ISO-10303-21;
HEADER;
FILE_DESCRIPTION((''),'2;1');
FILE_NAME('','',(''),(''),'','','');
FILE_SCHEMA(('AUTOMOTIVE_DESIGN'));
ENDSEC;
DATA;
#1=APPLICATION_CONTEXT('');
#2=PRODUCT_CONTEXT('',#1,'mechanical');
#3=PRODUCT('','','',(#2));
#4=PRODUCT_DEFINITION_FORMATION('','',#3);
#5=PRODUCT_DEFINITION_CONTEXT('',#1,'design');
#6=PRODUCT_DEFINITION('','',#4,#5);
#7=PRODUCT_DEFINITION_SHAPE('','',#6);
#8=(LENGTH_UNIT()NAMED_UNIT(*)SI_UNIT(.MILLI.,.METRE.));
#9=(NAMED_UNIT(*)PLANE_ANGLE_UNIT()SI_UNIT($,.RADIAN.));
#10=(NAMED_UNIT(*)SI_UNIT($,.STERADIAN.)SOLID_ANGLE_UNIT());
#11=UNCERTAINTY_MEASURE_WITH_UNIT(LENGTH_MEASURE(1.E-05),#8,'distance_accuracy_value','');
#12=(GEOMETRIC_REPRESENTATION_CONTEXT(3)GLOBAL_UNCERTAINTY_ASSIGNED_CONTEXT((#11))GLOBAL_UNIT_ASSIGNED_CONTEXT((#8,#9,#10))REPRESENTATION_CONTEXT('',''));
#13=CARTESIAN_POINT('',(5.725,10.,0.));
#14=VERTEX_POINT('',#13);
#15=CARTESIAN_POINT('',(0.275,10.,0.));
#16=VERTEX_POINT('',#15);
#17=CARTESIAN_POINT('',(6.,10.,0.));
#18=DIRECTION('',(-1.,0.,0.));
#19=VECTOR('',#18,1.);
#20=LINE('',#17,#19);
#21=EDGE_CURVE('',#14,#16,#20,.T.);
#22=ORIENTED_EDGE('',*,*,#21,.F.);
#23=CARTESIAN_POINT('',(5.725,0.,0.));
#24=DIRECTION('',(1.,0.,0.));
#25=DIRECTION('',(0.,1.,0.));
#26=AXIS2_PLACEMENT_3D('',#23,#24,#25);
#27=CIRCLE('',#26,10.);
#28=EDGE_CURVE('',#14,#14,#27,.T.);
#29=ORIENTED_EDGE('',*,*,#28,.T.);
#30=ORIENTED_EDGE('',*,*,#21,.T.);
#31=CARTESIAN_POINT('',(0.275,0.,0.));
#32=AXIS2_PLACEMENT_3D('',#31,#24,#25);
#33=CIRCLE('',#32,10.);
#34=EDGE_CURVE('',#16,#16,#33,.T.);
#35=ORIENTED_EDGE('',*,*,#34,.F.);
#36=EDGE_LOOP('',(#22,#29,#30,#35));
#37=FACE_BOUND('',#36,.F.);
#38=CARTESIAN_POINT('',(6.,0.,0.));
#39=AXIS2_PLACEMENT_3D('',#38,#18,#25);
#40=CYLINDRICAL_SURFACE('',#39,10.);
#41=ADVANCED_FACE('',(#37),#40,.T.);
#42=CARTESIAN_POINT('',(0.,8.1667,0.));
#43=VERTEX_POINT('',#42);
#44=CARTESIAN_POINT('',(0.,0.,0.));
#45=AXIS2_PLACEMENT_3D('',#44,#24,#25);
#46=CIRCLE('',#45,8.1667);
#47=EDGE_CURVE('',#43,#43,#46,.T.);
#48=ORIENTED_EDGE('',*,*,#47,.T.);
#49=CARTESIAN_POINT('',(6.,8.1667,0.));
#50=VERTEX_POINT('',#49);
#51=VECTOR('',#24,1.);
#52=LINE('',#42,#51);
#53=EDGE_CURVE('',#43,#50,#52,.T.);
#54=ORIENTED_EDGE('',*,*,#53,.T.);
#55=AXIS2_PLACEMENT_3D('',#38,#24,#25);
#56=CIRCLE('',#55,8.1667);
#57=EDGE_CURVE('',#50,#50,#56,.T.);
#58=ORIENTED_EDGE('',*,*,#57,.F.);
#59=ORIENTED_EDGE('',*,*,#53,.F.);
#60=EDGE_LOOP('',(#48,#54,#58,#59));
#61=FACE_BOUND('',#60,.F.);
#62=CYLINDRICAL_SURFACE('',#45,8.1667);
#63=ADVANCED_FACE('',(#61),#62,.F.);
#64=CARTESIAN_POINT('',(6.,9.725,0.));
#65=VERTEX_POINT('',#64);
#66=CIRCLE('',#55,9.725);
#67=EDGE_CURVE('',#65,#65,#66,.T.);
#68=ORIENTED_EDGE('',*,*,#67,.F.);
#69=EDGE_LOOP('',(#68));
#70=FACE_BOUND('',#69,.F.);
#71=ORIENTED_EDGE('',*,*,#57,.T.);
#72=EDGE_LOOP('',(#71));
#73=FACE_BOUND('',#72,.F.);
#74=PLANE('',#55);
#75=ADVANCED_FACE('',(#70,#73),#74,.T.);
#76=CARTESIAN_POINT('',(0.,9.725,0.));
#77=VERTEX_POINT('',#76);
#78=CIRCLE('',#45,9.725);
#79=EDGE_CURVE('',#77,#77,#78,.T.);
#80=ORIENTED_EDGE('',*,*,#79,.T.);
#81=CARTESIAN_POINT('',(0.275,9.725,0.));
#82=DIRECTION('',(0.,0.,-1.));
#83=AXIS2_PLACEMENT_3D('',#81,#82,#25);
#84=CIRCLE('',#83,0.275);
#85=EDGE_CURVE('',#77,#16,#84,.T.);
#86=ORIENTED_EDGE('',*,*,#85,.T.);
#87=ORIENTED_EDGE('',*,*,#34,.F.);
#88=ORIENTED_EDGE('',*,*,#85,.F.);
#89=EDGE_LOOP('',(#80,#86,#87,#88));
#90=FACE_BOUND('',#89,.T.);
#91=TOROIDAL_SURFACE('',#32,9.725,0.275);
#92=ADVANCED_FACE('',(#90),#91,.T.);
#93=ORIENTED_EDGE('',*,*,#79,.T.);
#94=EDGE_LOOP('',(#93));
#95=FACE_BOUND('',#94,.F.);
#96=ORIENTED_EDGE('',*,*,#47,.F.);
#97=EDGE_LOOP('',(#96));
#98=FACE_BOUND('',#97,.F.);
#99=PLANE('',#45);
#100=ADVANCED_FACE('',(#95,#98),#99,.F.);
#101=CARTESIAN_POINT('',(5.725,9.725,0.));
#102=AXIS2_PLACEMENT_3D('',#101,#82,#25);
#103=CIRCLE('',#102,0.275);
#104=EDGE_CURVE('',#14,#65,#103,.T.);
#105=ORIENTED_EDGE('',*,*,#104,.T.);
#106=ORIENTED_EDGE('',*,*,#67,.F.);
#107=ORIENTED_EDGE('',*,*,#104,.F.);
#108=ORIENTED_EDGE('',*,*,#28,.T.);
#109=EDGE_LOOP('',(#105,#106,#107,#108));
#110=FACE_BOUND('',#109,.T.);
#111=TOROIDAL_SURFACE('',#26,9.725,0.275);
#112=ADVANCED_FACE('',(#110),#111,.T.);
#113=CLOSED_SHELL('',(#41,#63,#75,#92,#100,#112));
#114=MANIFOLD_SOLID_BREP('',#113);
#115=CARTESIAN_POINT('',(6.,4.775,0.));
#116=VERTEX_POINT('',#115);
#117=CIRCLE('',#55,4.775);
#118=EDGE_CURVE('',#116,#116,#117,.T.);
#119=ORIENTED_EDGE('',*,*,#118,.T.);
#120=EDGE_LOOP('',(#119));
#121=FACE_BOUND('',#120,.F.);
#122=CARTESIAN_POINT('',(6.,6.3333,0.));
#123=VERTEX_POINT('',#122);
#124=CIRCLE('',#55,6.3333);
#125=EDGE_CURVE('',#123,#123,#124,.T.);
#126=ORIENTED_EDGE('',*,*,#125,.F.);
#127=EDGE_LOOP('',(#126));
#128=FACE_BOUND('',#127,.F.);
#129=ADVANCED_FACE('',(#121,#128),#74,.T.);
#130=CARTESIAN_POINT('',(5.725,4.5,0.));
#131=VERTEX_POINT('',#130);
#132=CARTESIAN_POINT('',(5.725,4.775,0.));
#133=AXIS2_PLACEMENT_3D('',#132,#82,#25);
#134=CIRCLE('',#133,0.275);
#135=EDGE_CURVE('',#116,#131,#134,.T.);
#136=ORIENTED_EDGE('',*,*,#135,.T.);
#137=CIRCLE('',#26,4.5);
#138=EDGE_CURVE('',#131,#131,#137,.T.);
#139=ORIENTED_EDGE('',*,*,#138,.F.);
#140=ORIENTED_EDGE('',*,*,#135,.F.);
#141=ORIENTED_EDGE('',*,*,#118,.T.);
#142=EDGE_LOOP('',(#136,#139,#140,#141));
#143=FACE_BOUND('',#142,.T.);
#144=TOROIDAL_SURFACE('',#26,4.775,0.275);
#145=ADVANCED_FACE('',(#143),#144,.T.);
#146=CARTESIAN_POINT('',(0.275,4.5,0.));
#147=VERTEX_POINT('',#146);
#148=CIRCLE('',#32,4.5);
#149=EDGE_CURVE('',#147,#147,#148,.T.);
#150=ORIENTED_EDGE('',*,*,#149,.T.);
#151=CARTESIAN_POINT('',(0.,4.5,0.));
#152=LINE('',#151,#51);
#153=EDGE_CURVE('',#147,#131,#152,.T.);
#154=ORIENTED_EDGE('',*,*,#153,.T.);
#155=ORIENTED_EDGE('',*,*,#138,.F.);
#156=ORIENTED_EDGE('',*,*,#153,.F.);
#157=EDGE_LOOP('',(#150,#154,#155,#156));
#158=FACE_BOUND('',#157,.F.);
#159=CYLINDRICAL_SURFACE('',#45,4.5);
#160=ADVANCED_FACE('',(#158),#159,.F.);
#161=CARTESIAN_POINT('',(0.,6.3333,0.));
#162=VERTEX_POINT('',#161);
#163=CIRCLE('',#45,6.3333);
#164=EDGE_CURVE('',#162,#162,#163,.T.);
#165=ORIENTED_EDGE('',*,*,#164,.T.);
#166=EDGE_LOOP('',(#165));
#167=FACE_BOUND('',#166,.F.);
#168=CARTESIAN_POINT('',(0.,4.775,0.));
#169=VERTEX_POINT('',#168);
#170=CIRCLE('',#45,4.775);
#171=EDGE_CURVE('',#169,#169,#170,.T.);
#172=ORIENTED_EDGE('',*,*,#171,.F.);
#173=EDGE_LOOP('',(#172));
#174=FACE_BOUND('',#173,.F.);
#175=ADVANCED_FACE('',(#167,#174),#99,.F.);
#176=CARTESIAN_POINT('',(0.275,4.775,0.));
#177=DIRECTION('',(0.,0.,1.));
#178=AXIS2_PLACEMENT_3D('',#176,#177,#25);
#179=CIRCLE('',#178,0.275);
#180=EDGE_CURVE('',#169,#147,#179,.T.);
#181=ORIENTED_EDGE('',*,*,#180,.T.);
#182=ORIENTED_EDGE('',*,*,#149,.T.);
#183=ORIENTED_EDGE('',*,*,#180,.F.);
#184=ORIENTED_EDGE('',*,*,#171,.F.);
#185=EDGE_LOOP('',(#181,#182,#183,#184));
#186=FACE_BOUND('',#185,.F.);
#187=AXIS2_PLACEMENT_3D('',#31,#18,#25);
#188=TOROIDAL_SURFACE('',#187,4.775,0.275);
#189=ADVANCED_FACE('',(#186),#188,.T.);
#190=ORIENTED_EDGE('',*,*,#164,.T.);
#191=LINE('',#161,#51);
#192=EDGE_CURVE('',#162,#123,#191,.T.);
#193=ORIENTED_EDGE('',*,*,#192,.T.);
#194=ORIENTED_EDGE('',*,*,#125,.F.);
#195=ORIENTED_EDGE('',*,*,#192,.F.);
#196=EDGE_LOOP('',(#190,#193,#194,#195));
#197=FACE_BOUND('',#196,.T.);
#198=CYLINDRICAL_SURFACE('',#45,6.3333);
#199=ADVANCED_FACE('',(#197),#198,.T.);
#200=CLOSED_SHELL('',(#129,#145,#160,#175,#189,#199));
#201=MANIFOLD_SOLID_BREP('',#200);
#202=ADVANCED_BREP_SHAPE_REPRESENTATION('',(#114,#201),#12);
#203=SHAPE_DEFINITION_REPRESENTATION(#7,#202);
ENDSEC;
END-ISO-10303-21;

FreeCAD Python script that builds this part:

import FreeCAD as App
import Part
import Sketcher

V = App.Vector


def edges_at(feature, points):
    """Names of the edges that pass closest to the given points."""
    edges = feature.Shape.Edges
    near = lambda p: min(range(len(edges)), key=lambda i: edges[i].distToShape(Part.Vertex(*p))[0])
    return sorted({f"Edge{near(p) + 1}" for p in points})


def add_polygon(sketch, points):
    """Adds a closed chain of lines whose ends are joined by coincident constraints."""
    first, n = sketch.GeometryCount, len(points)
    for a, b in zip(points, points[1:] + points[:1]):
        sketch.addGeometry(Part.LineSegment(App.Vector(*a, 0), App.Vector(*b, 0)), False)
    for i in range(n):
        sketch.addConstraint(Sketcher.Constraint("Coincident", first + i, 2, first + (i + 1) % n, 1))

doc = App.newDocument("Part")
body = doc.addObject("PartDesign::Body", "Body")
body.AllowCompound = True

sketch1 = body.newObject("Sketcher::SketchObject", "Sketch")
sketch1.AttachmentSupport = (doc.getObject("XY_Plane"), [""])
sketch1.MapMode = "FlatFace"
add_polygon(sketch1, [(0, 6.3), (0, 4.5), (6, 4.5), (6, 6.3)])
add_polygon(sketch1, [(0, 10), (0, 8.2), (6, 8.2), (6, 10)])
sketch1.addConstraint([
    Sketcher.Constraint("Vertical", 0),
    Sketcher.Constraint("Horizontal", 1),
    Sketcher.Constraint("Vertical", 2),
    Sketcher.Constraint("Horizontal", 3),
    Sketcher.Constraint("Vertical", 4),
    Sketcher.Constraint("Horizontal", 5),
    Sketcher.Constraint("Vertical", 6),
    Sketcher.Constraint("Horizontal", 7),
    Sketcher.Constraint("PointOnObject", 0, 2, -2),
    Sketcher.Constraint("PointOnObject", 4, 2, -2),
    Sketcher.Constraint("Vertical", 2, 2, 5, 2),
    Sketcher.Constraint("Equal", 2, 4),
    Sketcher.Constraint("DistanceX", 1, 1, 1, 2, 6.0),
    Sketcher.Constraint("DistanceY", -1, 1, 6, 2, 10.0),
    Sketcher.Constraint("DistanceY", -1, 1, 0, 2, 4.5),
    Sketcher.Constraint("DistanceY", 0, 2, 0, 1, 1.8333),
])
revolution = body.newObject("PartDesign::Revolution", "Revolution")
revolution.Profile = sketch1
revolution.ReferenceAxis = (sketch1, ["H_Axis"])
revolution.Angle = 360
doc.recompute()

fillet = body.newObject("PartDesign::Fillet", "Fillet")
fillet.Base = (revolution, edges_at(revolution, [
    (0, -10, 0),
    (6, -10, 0),
    (0, -4.5, 0),
    (6, -4.5, 0),
]))
fillet.Radius = 0.275

doc.recompute()
